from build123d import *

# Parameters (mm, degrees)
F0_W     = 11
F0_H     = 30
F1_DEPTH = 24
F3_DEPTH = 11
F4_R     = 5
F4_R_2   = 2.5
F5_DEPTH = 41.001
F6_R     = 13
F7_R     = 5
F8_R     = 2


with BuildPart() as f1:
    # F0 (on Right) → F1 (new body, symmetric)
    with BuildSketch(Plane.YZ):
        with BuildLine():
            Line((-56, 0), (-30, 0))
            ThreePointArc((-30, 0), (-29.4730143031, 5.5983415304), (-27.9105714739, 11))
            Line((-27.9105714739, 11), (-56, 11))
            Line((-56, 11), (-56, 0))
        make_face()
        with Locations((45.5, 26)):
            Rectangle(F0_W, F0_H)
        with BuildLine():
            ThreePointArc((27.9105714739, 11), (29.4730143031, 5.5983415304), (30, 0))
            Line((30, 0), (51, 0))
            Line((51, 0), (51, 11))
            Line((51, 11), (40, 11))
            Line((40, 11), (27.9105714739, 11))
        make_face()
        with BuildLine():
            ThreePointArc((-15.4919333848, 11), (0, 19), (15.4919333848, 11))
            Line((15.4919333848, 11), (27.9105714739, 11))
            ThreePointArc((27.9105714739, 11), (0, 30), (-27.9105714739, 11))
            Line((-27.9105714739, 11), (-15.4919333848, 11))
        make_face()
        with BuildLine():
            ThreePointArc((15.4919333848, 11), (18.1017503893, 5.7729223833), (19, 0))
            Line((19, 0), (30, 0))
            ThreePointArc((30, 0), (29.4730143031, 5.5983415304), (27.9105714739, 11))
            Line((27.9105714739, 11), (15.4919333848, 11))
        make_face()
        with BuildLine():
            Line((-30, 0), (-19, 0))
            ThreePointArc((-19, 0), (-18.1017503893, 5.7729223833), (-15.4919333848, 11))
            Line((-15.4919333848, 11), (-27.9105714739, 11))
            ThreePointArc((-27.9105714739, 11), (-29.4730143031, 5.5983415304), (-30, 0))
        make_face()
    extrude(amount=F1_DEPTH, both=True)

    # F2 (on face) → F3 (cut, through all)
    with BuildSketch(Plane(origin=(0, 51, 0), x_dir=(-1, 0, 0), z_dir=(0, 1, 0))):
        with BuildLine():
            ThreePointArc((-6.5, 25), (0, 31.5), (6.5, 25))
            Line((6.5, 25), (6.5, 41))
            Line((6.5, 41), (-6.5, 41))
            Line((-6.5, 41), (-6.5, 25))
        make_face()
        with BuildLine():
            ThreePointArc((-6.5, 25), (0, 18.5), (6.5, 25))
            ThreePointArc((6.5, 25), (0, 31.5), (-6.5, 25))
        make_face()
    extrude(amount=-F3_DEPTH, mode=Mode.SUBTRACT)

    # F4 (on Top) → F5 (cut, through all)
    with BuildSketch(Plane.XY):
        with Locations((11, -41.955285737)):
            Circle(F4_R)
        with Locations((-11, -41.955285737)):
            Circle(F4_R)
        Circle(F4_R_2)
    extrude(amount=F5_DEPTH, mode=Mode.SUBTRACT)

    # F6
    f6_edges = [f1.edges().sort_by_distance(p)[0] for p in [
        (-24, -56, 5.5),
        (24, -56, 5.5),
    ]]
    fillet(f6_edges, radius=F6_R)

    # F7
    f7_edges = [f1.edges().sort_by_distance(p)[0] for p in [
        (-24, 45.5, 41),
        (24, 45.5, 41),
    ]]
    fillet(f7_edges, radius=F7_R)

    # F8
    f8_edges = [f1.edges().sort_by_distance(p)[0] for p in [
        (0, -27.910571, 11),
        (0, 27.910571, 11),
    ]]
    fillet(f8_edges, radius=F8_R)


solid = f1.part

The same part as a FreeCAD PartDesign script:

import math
import FreeCAD as App
import Part
import Sketcher


def edges_at(feature, points):
    """Names of the edges that pass closest to the given points."""
    edges = feature.Shape.Edges
    near = lambda p: min(range(len(edges)), key=lambda i: edges[i].distToShape(Part.Vertex(*p))[0])
    return sorted({f"Edge{near(p) + 1}" for p in points})

doc = App.newDocument("Part")
body = doc.addObject("PartDesign::Body", "Body")

sketch1 = body.newObject("Sketcher::SketchObject", "Sketch")
sketch1.AttachmentSupport = (doc.getObject("YZ_Plane"), [""])
sketch1.MapMode = "FlatFace"
sketch1.addGeometry(Part.LineSegment(App.Vector(-56, 0, 0), App.Vector(-19, 0, 0)), False)
sketch1.addGeometry(Part.ArcOfCircle(Part.Circle(App.Vector(0, 0, 0), App.Vector(0, 0, 1), 19), math.radians(144.62346), math.radians(180)), False)
sketch1.addGeometry(Part.ArcOfCircle(Part.Circle(App.Vector(0, 0, 0), App.Vector(0, 0, 1), 19), math.radians(35.37654), math.radians(144.62346)), False)
sketch1.addGeometry(Part.ArcOfCircle(Part.Circle(App.Vector(0, 0, 0), App.Vector(0, 0, 1), 19), math.radians(0), math.radians(35.37654)), False)
sketch1.addGeometry(Part.LineSegment(App.Vector(19, 0, 0), App.Vector(51, 0, 0)), False)
sketch1.addGeometry(Part.LineSegment(App.Vector(51, 0, 0), App.Vector(51, 41, 0)), False)
sketch1.addGeometry(Part.LineSegment(App.Vector(51, 41, 0), App.Vector(40, 41, 0)), False)
sketch1.addGeometry(Part.LineSegment(App.Vector(40, 41, 0), App.Vector(40, 11, 0)), False)
sketch1.addGeometry(Part.LineSegment(App.Vector(40, 11, 0), App.Vector(27.910571, 11, 0)), False)
sketch1.addGeometry(Part.ArcOfCircle(Part.Circle(App.Vector(0, 0, 0), App.Vector(0, 0, 1), 30), math.radians(21.510188), math.radians(158.489812)), False)
sketch1.addGeometry(Part.LineSegment(App.Vector(-27.910571, 11, 0), App.Vector(-56, 11, 0)), False)
sketch1.addGeometry(Part.LineSegment(App.Vector(-56, 11, 0), App.Vector(-56, 0, 0)), False)
sketch1.addConstraint(Sketcher.Constraint("Coincident", 0, 2, 1, 2))
sketch1.addConstraint(Sketcher.Constraint("Tangent", 1, 1, 2, 2))
sketch1.addConstraint(Sketcher.Constraint("Tangent", 2, 1, 3, 2))
sketch1.addConstraint(Sketcher.Constraint("Coincident", 3, 1, 4, 1))
sketch1.addConstraint(Sketcher.Constraint("Coincident", 4, 2, 5, 1))
sketch1.addConstraint(Sketcher.Constraint("Coincident", 5, 2, 6, 1))
sketch1.addConstraint(Sketcher.Constraint("Coincident", 6, 2, 7, 1))
sketch1.addConstraint(Sketcher.Constraint("Coincident", 7, 2, 8, 1))
sketch1.addConstraint(Sketcher.Constraint("Coincident", 8, 2, 9, 1))
sketch1.addConstraint(Sketcher.Constraint("Coincident", 9, 2, 10, 1))
sketch1.addConstraint(Sketcher.Constraint("Coincident", 10, 2, 11, 1))
sketch1.addConstraint(Sketcher.Constraint("Coincident", 11, 2, 0, 1))
sketch1.addConstraint(Sketcher.Constraint("Horizontal", 0))
sketch1.addConstraint(Sketcher.Constraint("Horizontal", 4))
sketch1.addConstraint(Sketcher.Constraint("Vertical", 5))
sketch1.addConstraint(Sketcher.Constraint("Horizontal", 6))
sketch1.addConstraint(Sketcher.Constraint("Vertical", 7))
sketch1.addConstraint(Sketcher.Constraint("Horizontal", 8))
sketch1.addConstraint(Sketcher.Constraint("Horizontal", 10))
sketch1.addConstraint(Sketcher.Constraint("Vertical", 11))
sketch1.addConstraint(Sketcher.Constraint("Coincident", 1, 3, -1, 1))
sketch1.addConstraint(Sketcher.Constraint("Coincident", 3, 3, -1, 1))
sketch1.addConstraint(Sketcher.Constraint("Coincident", 9, 3, -1, 1))
sketch1.addConstraint(Sketcher.Constraint("PointOnObject", 0, 2, -1))
sketch1.addConstraint(Sketcher.Constraint("PointOnObject", 3, 1, -1))
sketch1.addConstraint(Sketcher.Constraint("Horizontal", 1, 1, 2, 1))
sketch1.addConstraint(Sketcher.Constraint("Horizontal", 2, 1, 7, 2))
sketch1.addConstraint(Sketcher.Constraint("Horizontal", 8, 2, 9, 2))
sketch1.addConstraint(Sketcher.Constraint("Equal", 6, 11))
sketch1.addConstraint(Sketcher.Constraint("Radius", 1, 19.0))
sketch1.addConstraint(Sketcher.Constraint("Radius", 9, 30.0))
sketch1.addConstraint(Sketcher.Constraint("DistanceX", 0, 1, 0, 2, 37.0))
sketch1.addConstraint(Sketcher.Constraint("DistanceX", 4, 1, 4, 2, 32.0))
sketch1.addConstraint(Sketcher.Constraint("DistanceX", 6, 2, 6, 1, 11.0))
sketch1.addConstraint(Sketcher.Constraint("DistanceY", 5, 1, 5, 2, 41.0))
pad1 = body.newObject("PartDesign::Pad", "Pad")
pad1.Profile = sketch1
pad1.Length = 48
pad1.Midplane = True

sketch2 = body.newObject("Sketcher::SketchObject", "Sketch001")
sketch2.AttachmentSupport = (doc.getObject("XZ_Plane"), [""])
sketch2.MapMode = "FlatFace"
sketch2.AttachmentOffset = App.Placement(App.Vector(0, 0, -51), App.Rotation())
sketch2.addGeometry(Part.LineSegment(App.Vector(-6.5, 25, 0), App.Vector(-6.5, 41, 0)), False)
sketch2.addGeometry(Part.LineSegment(App.Vector(-6.5, 41, 0), App.Vector(6.5, 41, 0)), False)
sketch2.addGeometry(Part.LineSegment(App.Vector(6.5, 41, 0), App.Vector(6.5, 25, 0)), False)
sketch2.addGeometry(Part.ArcOfCircle(Part.Circle(App.Vector(0, 25, 0), App.Vector(0, 0, 1), 6.5), math.radians(180), math.radians(360)), False)
sketch2.addConstraint(Sketcher.Constraint("Coincident", 0, 2, 1, 1))
sketch2.addConstraint(Sketcher.Constraint("Coincident", 1, 2, 2, 1))
sketch2.addConstraint(Sketcher.Constraint("Tangent", 2, 2, 3, 2))
sketch2.addConstraint(Sketcher.Constraint("Tangent", 3, 1, 0, 1))
sketch2.addConstraint(Sketcher.Constraint("Vertical", 0))
sketch2.addConstraint(Sketcher.Constraint("Horizontal", 1))
sketch2.addConstraint(Sketcher.Constraint("Vertical", 2))
sketch2.addConstraint(Sketcher.Constraint("PointOnObject", 3, 3, -2))
sketch2.addConstraint(Sketcher.Constraint("Radius", 3, 6.5))
sketch2.addConstraint(Sketcher.Constraint("DistanceY", 0, 1, 0, 2, 16.0))
sketch2.addConstraint(Sketcher.Constraint("DistanceY", -1, 1, 3, 3, 25.0))
pocket1 = body.newObject("PartDesign::Pocket", "Pocket")
pocket1.Profile = sketch2
pocket1.Length = 11
pocket1.Reversed = True

sketch3 = body.newObject("Sketcher::SketchObject", "Sketch002")
sketch3.AttachmentSupport = (doc.getObject("XY_Plane"), [""])
sketch3.MapMode = "FlatFace"
sketch3.addGeometry(Part.Circle(App.Vector(11, -41.955286, 0), App.Vector(0, 0, 1), 5), False)
sketch3.addGeometry(Part.Circle(App.Vector(-11, -41.955286, 0), App.Vector(0, 0, 1), 5), False)
sketch3.addGeometry(Part.Circle(App.Vector(0, 0, 0), App.Vector(0, 0, 1), 2.5), False)
sketch3.addConstraint(Sketcher.Constraint("Coincident", 2, 3, -1, 1))
sketch3.addConstraint(Sketcher.Constraint("Equal", 0, 1))
sketch3.addConstraint(Sketcher.Constraint("Symmetric", 0, 3, 1, 3, -2))
sketch3.addConstraint(Sketcher.Constraint("Diameter", 0, 10.0))
sketch3.addConstraint(Sketcher.Constraint("Diameter", 2, 5.0))
sketch3.addConstraint(Sketcher.Constraint("DistanceX", -1, 1, 0, 3, 11.0))
sketch3.addConstraint(Sketcher.Constraint("DistanceY", 0, 3, -1, 1, 41.955286))
pocket2 = body.newObject("PartDesign::Pocket", "Pocket001")
pocket2.Profile = sketch3
pocket2.Type = "ThroughAll"
pocket2.Reversed = True
doc.recompute()

fillet = body.newObject("PartDesign::Fillet", "Fillet")
fillet.Base = (pocket2, edges_at(pocket2, [(-24, -56, 5.5), (24, -56, 5.5)]))
fillet.Radius = 13
doc.recompute()

fillet2 = body.newObject("PartDesign::Fillet", "Fillet001")
fillet2.Base = (fillet, edges_at(fillet, [(-24, 45.5, 41), (24, 45.5, 41)]))
fillet2.Radius = 5
doc.recompute()

fillet3 = body.newObject("PartDesign::Fillet", "Fillet002")
fillet3.Base = (fillet2, edges_at(fillet2, [(0, -27.911, 11), (0, 27.911, 11)]))
fillet3.Radius = 2

doc.recompute()
